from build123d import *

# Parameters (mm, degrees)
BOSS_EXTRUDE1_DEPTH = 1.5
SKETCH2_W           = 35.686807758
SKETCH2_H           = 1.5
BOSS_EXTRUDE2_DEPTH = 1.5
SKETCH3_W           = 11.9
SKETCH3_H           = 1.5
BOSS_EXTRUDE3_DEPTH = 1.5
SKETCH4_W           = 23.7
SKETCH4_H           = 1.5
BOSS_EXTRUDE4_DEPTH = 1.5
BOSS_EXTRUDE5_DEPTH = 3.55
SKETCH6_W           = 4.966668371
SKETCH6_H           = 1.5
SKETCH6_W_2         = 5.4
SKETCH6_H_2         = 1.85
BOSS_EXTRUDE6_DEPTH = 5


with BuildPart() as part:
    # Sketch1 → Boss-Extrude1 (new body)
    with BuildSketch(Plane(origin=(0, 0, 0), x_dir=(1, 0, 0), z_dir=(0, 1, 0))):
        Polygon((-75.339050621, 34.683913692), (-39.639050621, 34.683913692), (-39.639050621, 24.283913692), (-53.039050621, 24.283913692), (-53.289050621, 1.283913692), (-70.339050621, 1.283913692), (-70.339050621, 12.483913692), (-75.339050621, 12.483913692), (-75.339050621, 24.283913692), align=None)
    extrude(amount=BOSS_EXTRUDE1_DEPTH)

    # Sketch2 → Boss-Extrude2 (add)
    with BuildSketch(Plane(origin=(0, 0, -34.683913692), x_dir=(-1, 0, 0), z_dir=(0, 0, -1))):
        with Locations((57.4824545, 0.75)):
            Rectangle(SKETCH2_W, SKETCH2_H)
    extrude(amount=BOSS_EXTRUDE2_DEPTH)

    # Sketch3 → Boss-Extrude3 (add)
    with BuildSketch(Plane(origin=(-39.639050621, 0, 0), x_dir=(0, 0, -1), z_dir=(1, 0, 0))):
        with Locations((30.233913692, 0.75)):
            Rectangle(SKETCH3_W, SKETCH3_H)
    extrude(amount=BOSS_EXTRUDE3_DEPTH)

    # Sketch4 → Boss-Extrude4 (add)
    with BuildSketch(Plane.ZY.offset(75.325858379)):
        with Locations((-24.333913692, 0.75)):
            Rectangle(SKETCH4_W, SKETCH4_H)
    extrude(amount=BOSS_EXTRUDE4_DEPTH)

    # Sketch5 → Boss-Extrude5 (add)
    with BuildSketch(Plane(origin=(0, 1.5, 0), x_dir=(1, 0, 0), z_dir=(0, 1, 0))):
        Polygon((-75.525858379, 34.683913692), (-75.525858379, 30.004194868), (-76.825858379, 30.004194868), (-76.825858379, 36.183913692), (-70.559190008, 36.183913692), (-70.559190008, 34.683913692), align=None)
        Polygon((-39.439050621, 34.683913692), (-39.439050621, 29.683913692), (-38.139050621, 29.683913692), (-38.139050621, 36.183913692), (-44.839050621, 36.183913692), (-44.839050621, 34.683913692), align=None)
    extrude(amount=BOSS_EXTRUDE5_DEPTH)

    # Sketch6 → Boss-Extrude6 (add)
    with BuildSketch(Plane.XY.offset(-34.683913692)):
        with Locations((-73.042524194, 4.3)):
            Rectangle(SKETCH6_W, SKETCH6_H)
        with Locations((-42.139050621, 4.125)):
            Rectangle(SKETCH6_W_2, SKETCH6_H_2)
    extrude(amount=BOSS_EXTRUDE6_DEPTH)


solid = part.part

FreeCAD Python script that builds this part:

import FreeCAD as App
import Part
import Sketcher
from FreeCAD import Vector

doc = App.newDocument("Part")
params = doc.addObject("Spreadsheet::Sheet", "Params")
for row, (alias, value) in enumerate([
    ("sketch1_width", "5 mm"),
    ("sketch1_width2", "35.7 mm"),
    ("sketch1_width3", "13.4 mm"),
    ("sketch1_height", "22.2 mm"),
    ("sketch1_height2", "11.2 mm"),
    ("pad1_length", "1.5 mm"),
    ("sketch2_height", "1.5 mm"),
    ("pad2_length", "1.5 mm"),
    ("sketch3_width", "1.5 mm"),
    ("sketch3_height", "11.9 mm"),
    ("pad3_length", "1.5 mm"),
    ("sketch4_width", "1.5 mm"),
    ("sketch4_height", "23.7 mm"),
    ("pad4_length", "1.5 mm"),
    ("sketch5_height", "5 mm"),
    ("sketch5_width", "1.3 mm"),
    ("sketch5_width2", "6.7 mm"),
    ("sketch5_height2", "1.5 mm"),
    ("pad5_length", "3.55 mm"),
    ("sketch6_width", "5.4 mm"),
    ("sketch6_height", "1.5 mm"),
    ("sketch6_height2", "1.85 mm"),
    ("pad6_length", "5 mm"),
], start=1):
    params.set(f"A{row}", alias)
    params.set(f"B{row}", "=" + value)
    params.setAlias(f"B{row}", alias)

body = doc.addObject("PartDesign::Body", "Body")

# Sketch on XZ plane
sketch1 = doc.addObject("Sketcher::SketchObject", "Sketch")
body.addObject(sketch1)
sketch1.AttachmentSupport = (doc.XZ_Plane, [""])
sketch1.MapMode = "FlatFace"
sketch1.addGeometry(Part.LineSegment(Vector(-40, -35, 0), Vector(-75, -35, 0)), False)
sketch1.addGeometry(Part.LineSegment(Vector(-75, -35, 0), Vector(-75, -12, 0)), False)
sketch1.addGeometry(Part.LineSegment(Vector(-75, -12, 0), Vector(-70, -12, 0)), False)
sketch1.addGeometry(Part.LineSegment(Vector(-70, -12, 0), Vector(-70, -1, 0)), False)
sketch1.addGeometry(Part.LineSegment(Vector(-70, -1, 0), Vector(-53, -1, 0)), False)
sketch1.addGeometry(Part.LineSegment(Vector(-53, -1, 0), Vector(-53, -24, 0)), False)
sketch1.addGeometry(Part.LineSegment(Vector(-53, -24, 0), Vector(-40, -24, 0)), False)
sketch1.addGeometry(Part.LineSegment(Vector(-40, -24, 0), Vector(-40, -35, 0)), False)
sketch1.addConstraint(Sketcher.Constraint("Coincident", 0, 2, 1, 1))
sketch1.addConstraint(Sketcher.Constraint("Coincident", 1, 2, 2, 1))
sketch1.addConstraint(Sketcher.Constraint("Coincident", 2, 2, 3, 1))
sketch1.addConstraint(Sketcher.Constraint("Coincident", 3, 2, 4, 1))
sketch1.addConstraint(Sketcher.Constraint("Coincident", 4, 2, 5, 1))
sketch1.addConstraint(Sketcher.Constraint("Coincident", 5, 2, 6, 1))
sketch1.addConstraint(Sketcher.Constraint("Coincident", 6, 2, 7, 1))
sketch1.addConstraint(Sketcher.Constraint("Coincident", 7, 2, 0, 1))
sketch1.addConstraint(Sketcher.Constraint("Horizontal", 0))
sketch1.addConstraint(Sketcher.Constraint("Vertical", 1))
sketch1.addConstraint(Sketcher.Constraint("Horizontal", 2))
sketch1.addConstraint(Sketcher.Constraint("Vertical", 3))
sketch1.addConstraint(Sketcher.Constraint("Horizontal", 4))
sketch1.addConstraint(Sketcher.Constraint("Horizontal", 6))
sketch1.addConstraint(Sketcher.Constraint("Vertical", 7))
sketch1.addConstraint(Sketcher.Constraint("DistanceX", 2, 1, 2, 2, 5.0))
sketch1.addConstraint(Sketcher.Constraint("DistanceX", 0, 2, 0, 1, 35.7))
sketch1.addConstraint(Sketcher.Constraint("DistanceX", 6, 1, 6, 2, 13.4))
sketch1.addConstraint(Sketcher.Constraint("DistanceY", 1, 1, 1, 2, 22.2))
sketch1.addConstraint(Sketcher.Constraint("DistanceY", 3, 1, 3, 2, 11.2))
sketch1.addConstraint(Sketcher.Constraint("DistanceY", 7, 2, 7, 1, 10.4))
sketch1.addConstraint(Sketcher.Constraint("DistanceX", 4, 1, 4, 2, 17.05))
sketch1.addConstraint(Sketcher.Constraint("DistanceX", 0, 2, -1, 1, 75.339051))
sketch1.addConstraint(Sketcher.Constraint("DistanceY", 0, 2, -1, 1, 34.683914))
sketch1.setExpression("Constraints[15]", "Params.sketch1_width")
sketch1.setExpression("Constraints[16]", "Params.sketch1_width2")
sketch1.setExpression("Constraints[17]", "Params.sketch1_width3")
sketch1.setExpression("Constraints[18]", "Params.sketch1_height")
sketch1.setExpression("Constraints[19]", "Params.sketch1_height2")
pad1 = doc.addObject("PartDesign::Pad", "Pad")
body.addObject(pad1)
pad1.Profile = sketch1
pad1.setExpression("Length", "Params.pad1_length")
pad1.Reversed = True

# Sketch on XY plane
sketch2 = doc.addObject("Sketcher::SketchObject", "Sketch001")
body.addObject(sketch2)
sketch2.AttachmentSupport = (doc.XY_Plane, [""])
sketch2.MapMode = "FlatFace"
sketch2.AttachmentOffset = App.Placement(Vector(0, 0, -34.683914), App.Rotation())
sketch2.addGeometry(Part.LineSegment(Vector(-39.6, 1.5, 0), Vector(-39.6, 0, 0)), False)
sketch2.addGeometry(Part.LineSegment(Vector(-39.6, 0, 0), Vector(-75.3, 0, 0)), False)
sketch2.addGeometry(Part.LineSegment(Vector(-75.3, 0, 0), Vector(-75.3, 1.5, 0)), False)
sketch2.addGeometry(Part.LineSegment(Vector(-75.3, 1.5, 0), Vector(-39.6, 1.5, 0)), False)
sketch2.addConstraint(Sketcher.Constraint("Coincident", 0, 2, 1, 1))
sketch2.addConstraint(Sketcher.Constraint("Coincident", 1, 2, 2, 1))
sketch2.addConstraint(Sketcher.Constraint("Coincident", 2, 2, 3, 1))
sketch2.addConstraint(Sketcher.Constraint("Coincident", 3, 2, 0, 1))
sketch2.addConstraint(Sketcher.Constraint("Vertical", 0))
sketch2.addConstraint(Sketcher.Constraint("Horizontal", 1))
sketch2.addConstraint(Sketcher.Constraint("Vertical", 2))
sketch2.addConstraint(Sketcher.Constraint("Horizontal", 3))
sketch2.addConstraint(Sketcher.Constraint("PointOnObject", 0, 2, -1))
sketch2.addConstraint(Sketcher.Constraint("DistanceY", 0, 2, 0, 1, 1.5))
sketch2.addConstraint(Sketcher.Constraint("DistanceX", 1, 2, 1, 1, 35.686808))
sketch2.addConstraint(Sketcher.Constraint("DistanceX", 0, 2, -1, 1, 39.639051))
sketch2.setExpression("Constraints[9]", "Params.sketch2_height")
pad2 = doc.addObject("PartDesign::Pad", "Pad001")
body.addObject(pad2)
pad2.Profile = sketch2
pad2.setExpression("Length", "Params.pad2_length")
pad2.Reversed = True

# Sketch on YZ plane
sketch3 = doc.addObject("Sketcher::SketchObject", "Sketch002")
body.addObject(sketch3)
sketch3.AttachmentSupport = (doc.YZ_Plane, [""])
sketch3.MapMode = "FlatFace"
sketch3.AttachmentOffset = App.Placement(Vector(0, 0, -39.639051), App.Rotation())
sketch3.addGeometry(Part.LineSegment(Vector(1.5, -24.3, 0), Vector(0, -24.3, 0)), False)
sketch3.addGeometry(Part.LineSegment(Vector(0, -24.3, 0), Vector(0, -36.2, 0)), False)
sketch3.addGeometry(Part.LineSegment(Vector(0, -36.2, 0), Vector(1.5, -36.2, 0)), False)
sketch3.addGeometry(Part.LineSegment(Vector(1.5, -36.2, 0), Vector(1.5, -24.3, 0)), False)
sketch3.addConstraint(Sketcher.Constraint("Coincident", 0, 2, 1, 1))
sketch3.addConstraint(Sketcher.Constraint("Coincident", 1, 2, 2, 1))
sketch3.addConstraint(Sketcher.Constraint("Coincident", 2, 2, 3, 1))
sketch3.addConstraint(Sketcher.Constraint("Coincident", 3, 2, 0, 1))
sketch3.addConstraint(Sketcher.Constraint("Horizontal", 0))
sketch3.addConstraint(Sketcher.Constraint("Vertical", 1))
sketch3.addConstraint(Sketcher.Constraint("Horizontal", 2))
sketch3.addConstraint(Sketcher.Constraint("Vertical", 3))
sketch3.addConstraint(Sketcher.Constraint("PointOnObject", 0, 2, -2))
sketch3.addConstraint(Sketcher.Constraint("DistanceX", 0, 2, 0, 1, 1.5))
sketch3.addConstraint(Sketcher.Constraint("DistanceY", 1, 2, 1, 1, 11.9))
sketch3.addConstraint(Sketcher.Constraint("DistanceY", 0, 2, -1, 1, 24.283914))
sketch3.setExpression("Constraints[9]", "Params.sketch3_width")
sketch3.setExpression("Constraints[10]", "Params.sketch3_height")
pad3 = doc.addObject("PartDesign::Pad", "Pad002")
body.addObject(pad3)
pad3.Profile = sketch3
pad3.setExpression("Length", "Params.pad3_length")

# Sketch on YZ plane
sketch4 = doc.addObject("Sketcher::SketchObject", "Sketch003")
body.addObject(sketch4)
sketch4.AttachmentSupport = (doc.YZ_Plane, [""])
sketch4.MapMode = "FlatFace"
sketch4.AttachmentOffset = App.Placement(Vector(0, 0, -75.325858), App.Rotation())
sketch4.addGeometry(Part.LineSegment(Vector(1.5, -36.2, 0), Vector(0, -36.2, 0)), False)
sketch4.addGeometry(Part.LineSegment(Vector(0, -36.2, 0), Vector(0, -12.5, 0)), False)
sketch4.addGeometry(Part.LineSegment(Vector(0, -12.5, 0), Vector(1.5, -12.5, 0)), False)
sketch4.addGeometry(Part.LineSegment(Vector(1.5, -12.5, 0), Vector(1.5, -36.2, 0)), False)
sketch4.addConstraint(Sketcher.Constraint("Coincident", 0, 2, 1, 1))
sketch4.addConstraint(Sketcher.Constraint("Coincident", 1, 2, 2, 1))
sketch4.addConstraint(Sketcher.Constraint("Coincident", 2, 2, 3, 1))
sketch4.addConstraint(Sketcher.Constraint("Coincident", 3, 2, 0, 1))
sketch4.addConstraint(Sketcher.Constraint("Horizontal", 0))
sketch4.addConstraint(Sketcher.Constraint("Vertical", 1))
sketch4.addConstraint(Sketcher.Constraint("Horizontal", 2))
sketch4.addConstraint(Sketcher.Constraint("Vertical", 3))
sketch4.addConstraint(Sketcher.Constraint("PointOnObject", 0, 2, -2))
sketch4.addConstraint(Sketcher.Constraint("DistanceX", 0, 2, 0, 1, 1.5))
sketch4.addConstraint(Sketcher.Constraint("DistanceY", 1, 1, 1, 2, 23.7))
sketch4.addConstraint(Sketcher.Constraint("DistanceY", 0, 2, -1, 1, 36.183914))
sketch4.setExpression("Constraints[9]", "Params.sketch4_width")
sketch4.setExpression("Constraints[10]", "Params.sketch4_height")
pad4 = doc.addObject("PartDesign::Pad", "Pad003")
body.addObject(pad4)
pad4.Profile = sketch4
pad4.setExpression("Length", "Params.pad4_length")
pad4.Reversed = True

# Sketch on XZ plane
sketch5 = doc.addObject("Sketcher::SketchObject", "Sketch004")
body.addObject(sketch5)
sketch5.AttachmentSupport = (doc.XZ_Plane, [""])
sketch5.MapMode = "FlatFace"
sketch5.AttachmentOffset = App.Placement(Vector(0, 0, -1.5), App.Rotation())
sketch5.addGeometry(Part.LineSegment(Vector(-75.5, -30, 0), Vector(-75.5, -34.7, 0)), False)
sketch5.addGeometry(Part.LineSegment(Vector(-75.5, -34.7, 0), Vector(-70.6, -34.7, 0)), False)
sketch5.addGeometry(Part.LineSegment(Vector(-70.6, -34.7, 0), Vector(-70.6, -36.2, 0)), False)
sketch5.addGeometry(Part.LineSegment(Vector(-70.6, -36.2, 0), Vector(-76.8, -36.2, 0)), False)
sketch5.addGeometry(Part.LineSegment(Vector(-76.8, -36.2, 0), Vector(-76.8, -30, 0)), False)
sketch5.addGeometry(Part.LineSegment(Vector(-76.8, -30, 0), Vector(-75.5, -30, 0)), False)
sketch5.addGeometry(Part.LineSegment(Vector(-39.4, -34.7, 0), Vector(-39.4, -29.7, 0)), False)
sketch5.addGeometry(Part.LineSegment(Vector(-39.4, -29.7, 0), Vector(-38.1, -29.7, 0)), False)
sketch5.addGeometry(Part.LineSegment(Vector(-38.1, -29.7, 0), Vector(-38.1, -36.2, 0)), False)
sketch5.addGeometry(Part.LineSegment(Vector(-38.1, -36.2, 0), Vector(-44.8, -36.2, 0)), False)
sketch5.addGeometry(Part.LineSegment(Vector(-44.8, -36.2, 0), Vector(-44.8, -34.7, 0)), False)
sketch5.addGeometry(Part.LineSegment(Vector(-44.8, -34.7, 0), Vector(-39.4, -34.7, 0)), False)
sketch5.addConstraint(Sketcher.Constraint("Coincident", 0, 2, 1, 1))
sketch5.addConstraint(Sketcher.Constraint("Coincident", 1, 2, 2, 1))
sketch5.addConstraint(Sketcher.Constraint("Coincident", 2, 2, 3, 1))
sketch5.addConstraint(Sketcher.Constraint("Coincident", 3, 2, 4, 1))
sketch5.addConstraint(Sketcher.Constraint("Coincident", 4, 2, 5, 1))
sketch5.addConstraint(Sketcher.Constraint("Coincident", 5, 2, 0, 1))
sketch5.addConstraint(Sketcher.Constraint("Coincident", 6, 2, 7, 1))
sketch5.addConstraint(Sketcher.Constraint("Coincident", 7, 2, 8, 1))
sketch5.addConstraint(Sketcher.Constraint("Coincident", 8, 2, 9, 1))
sketch5.addConstraint(Sketcher.Constraint("Coincident", 9, 2, 10, 1))
sketch5.addConstraint(Sketcher.Constraint("Coincident", 10, 2, 11, 1))
sketch5.addConstraint(Sketcher.Constraint("Coincident", 11, 2, 6, 1))
sketch5.addConstraint(Sketcher.Constraint("Vertical", 0))
sketch5.addConstraint(Sketcher.Constraint("Horizontal", 1))
sketch5.addConstraint(Sketcher.Constraint("Vertical", 2))
sketch5.addConstraint(Sketcher.Constraint("Horizontal", 3))
sketch5.addConstraint(Sketcher.Constraint("Vertical", 4))
sketch5.addConstraint(Sketcher.Constraint("Horizontal", 5))
sketch5.addConstraint(Sketcher.Constraint("Vertical", 6))
sketch5.addConstraint(Sketcher.Constraint("Horizontal", 7))
sketch5.addConstraint(Sketcher.Constraint("Vertical", 8))
sketch5.addConstraint(Sketcher.Constraint("Horizontal", 9))
sketch5.addConstraint(Sketcher.Constraint("Vertical", 10))
sketch5.addConstraint(Sketcher.Constraint("Horizontal", 11))
sketch5.addConstraint(Sketcher.Constraint("Horizontal", 3, 2, 8, 2))
sketch5.addConstraint(Sketcher.Constraint("Horizontal", 1, 2, 10, 2))
sketch5.addConstraint(Sketcher.Constraint("Equal", 5, 7))
sketch5.addConstraint(Sketcher.Constraint("DistanceY", 6, 1, 6, 2, 5.0))
sketch5.addConstraint(Sketcher.Constraint("DistanceX", 5, 1, 5, 2, 1.3))
sketch5.addConstraint(Sketcher.Constraint("DistanceX", 9, 2, 9, 1, 6.7))
sketch5.addConstraint(Sketcher.Constraint("DistanceY", 2, 2, 2, 1, 1.5))
sketch5.addConstraint(Sketcher.Constraint("DistanceX", 1, 1, 1, 2, 4.966668))
sketch5.addConstraint(Sketcher.Constraint("DistanceY", 0, 2, 0, 1, 4.679719))
sketch5.addConstraint(Sketcher.Constraint("DistanceX", 0, 2, -1, 1, 75.525858))
sketch5.addConstraint(Sketcher.Constraint("DistanceX", 6, 2, -1, 1, 39.439051))
sketch5.addConstraint(Sketcher.Constraint("DistanceY", 0, 2, -1, 1, 34.683914))
sketch5.setExpression("Constraints[27]", "Params.sketch5_height")
sketch5.setExpression("Constraints[28]", "Params.sketch5_width")
sketch5.setExpression("Constraints[29]", "Params.sketch5_width2")
sketch5.setExpression("Constraints[30]", "Params.sketch5_height2")
pad5 = doc.addObject("PartDesign::Pad", "Pad004")
body.addObject(pad5)
pad5.Profile = sketch5
pad5.setExpression("Length", "Params.pad5_length")
pad5.Reversed = True

# Sketch on XY plane
sketch6 = doc.addObject("Sketcher::SketchObject", "Sketch005")
body.addObject(sketch6)
sketch6.AttachmentSupport = (doc.XY_Plane, [""])
sketch6.MapMode = "FlatFace"
sketch6.AttachmentOffset = App.Placement(Vector(0, 0, -34.683914), App.Rotation())
sketch6.addGeometry(Part.LineSegment(Vector(-75.5, 5, 0), Vector(-75.5, 3.5, 0)), False)
sketch6.addGeometry(Part.LineSegment(Vector(-75.5, 3.5, 0), Vector(-70.6, 3.5, 0)), False)
sketch6.addGeometry(Part.LineSegment(Vector(-70.6, 3.5, 0), Vector(-70.6, 5, 0)), False)
sketch6.addGeometry(Part.LineSegment(Vector(-70.6, 5, 0), Vector(-75.5, 5, 0)), False)
sketch6.addGeometry(Part.LineSegment(Vector(-44.8, 5, 0), Vector(-44.8, 3.2, 0)), False)
sketch6.addGeometry(Part.LineSegment(Vector(-44.8, 3.2, 0), Vector(-39.4, 3.2, 0)), False)
sketch6.addGeometry(Part.LineSegment(Vector(-39.4, 3.2, 0), Vector(-39.4, 5, 0)), False)
sketch6.addGeometry(Part.LineSegment(Vector(-39.4, 5, 0), Vector(-44.8, 5, 0)), False)
sketch6.addConstraint(Sketcher.Constraint("Coincident", 0, 2, 1, 1))
sketch6.addConstraint(Sketcher.Constraint("Coincident", 1, 2, 2, 1))
sketch6.addConstraint(Sketcher.Constraint("Coincident", 2, 2, 3, 1))
sketch6.addConstraint(Sketcher.Constraint("Coincident", 3, 2, 0, 1))
sketch6.addConstraint(Sketcher.Constraint("Coincident", 4, 2, 5, 1))
sketch6.addConstraint(Sketcher.Constraint("Coincident", 5, 2, 6, 1))
sketch6.addConstraint(Sketcher.Constraint("Coincident", 6, 2, 7, 1))
sketch6.addConstraint(Sketcher.Constraint("Coincident", 7, 2, 4, 1))
sketch6.addConstraint(Sketcher.Constraint("Vertical", 0))
sketch6.addConstraint(Sketcher.Constraint("Horizontal", 1))
sketch6.addConstraint(Sketcher.Constraint("Vertical", 2))
sketch6.addConstraint(Sketcher.Constraint("Horizontal", 3))
sketch6.addConstraint(Sketcher.Constraint("Vertical", 4))
sketch6.addConstraint(Sketcher.Constraint("Horizontal", 5))
sketch6.addConstraint(Sketcher.Constraint("Vertical", 6))
sketch6.addConstraint(Sketcher.Constraint("Horizontal", 7))
sketch6.addConstraint(Sketcher.Constraint("Horizontal", 3, 2, 6, 2))
sketch6.addConstraint(Sketcher.Constraint("DistanceX", 5, 1, 5, 2, 5.4))
sketch6.addConstraint(Sketcher.Constraint("DistanceY", 0, 2, 0, 1, 1.5))
sketch6.addConstraint(Sketcher.Constraint("DistanceY", 4, 2, 4, 1, 1.85))
sketch6.addConstraint(Sketcher.Constraint("DistanceY", -1, 1, 4, 2, 3.2))
sketch6.addConstraint(Sketcher.Constraint("DistanceX", 1, 1, 1, 2, 4.966668))
sketch6.addConstraint(Sketcher.Constraint("DistanceX", 0, 2, -1, 1, 75.525858))
sketch6.addConstraint(Sketcher.Constraint("DistanceX", 4, 2, -1, 1, 44.839051))
sketch6.setExpression("Constraints[17]", "Params.sketch6_width")
sketch6.setExpression("Constraints[18]", "Params.sketch6_height")
sketch6.setExpression("Constraints[19]", "Params.sketch6_height2")
pad6 = doc.addObject("PartDesign::Pad", "Pad005")
body.addObject(pad6)
pad6.Profile = sketch6
pad6.setExpression("Length", "Params.pad6_length")

doc.recompute()
